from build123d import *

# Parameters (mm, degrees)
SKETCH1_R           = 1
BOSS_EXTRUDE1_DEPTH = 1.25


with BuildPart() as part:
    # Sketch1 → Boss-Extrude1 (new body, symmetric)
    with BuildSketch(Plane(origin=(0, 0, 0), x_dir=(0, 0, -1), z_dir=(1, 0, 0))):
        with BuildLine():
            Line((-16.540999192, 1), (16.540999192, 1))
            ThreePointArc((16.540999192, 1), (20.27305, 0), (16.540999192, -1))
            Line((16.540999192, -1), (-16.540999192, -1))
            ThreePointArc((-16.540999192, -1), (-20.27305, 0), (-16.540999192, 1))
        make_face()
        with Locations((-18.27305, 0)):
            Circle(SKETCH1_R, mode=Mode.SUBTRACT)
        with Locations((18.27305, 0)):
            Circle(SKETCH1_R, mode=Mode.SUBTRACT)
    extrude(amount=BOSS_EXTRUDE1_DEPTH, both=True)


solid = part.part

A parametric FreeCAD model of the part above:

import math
import FreeCAD as App
import Part
import Sketcher
from FreeCAD import Vector

doc = App.newDocument("Part")
body = doc.addObject("PartDesign::Body", "Body")

sketch1 = doc.addObject("Sketcher::SketchObject", "Sketch")
body.addObject(sketch1)
sketch1.AttachmentSupport = (doc.YZ_Plane, [""])
sketch1.MapMode = "FlatFace"
sketch1.addGeometry([
    Part.LineSegment(Vector(1, -16.540999, 0), Vector(1, 16.540999, 0)),
    Part.ArcOfCircle(Part.Circle(Vector(0, 18.27305, 0), Vector(0, 0, 1), 2), math.radians(-60), math.radians(240)),
    Part.LineSegment(Vector(-1, 16.540999, 0), Vector(-1, -16.540999, 0)),
    Part.ArcOfCircle(Part.Circle(Vector(0, -18.27305, 0), Vector(0, 0, 1), 2), math.radians(120), math.radians(420)),
    Part.Circle(Vector(0, -18.27305, 0), Vector(0, 0, 1), 1),
    Part.Circle(Vector(0, 18.27305, 0), Vector(0, 0, 1), 1),
], False)
sketch1.addConstraint([
    Sketcher.Constraint("Coincident", 0, 2, 1, 1),
    Sketcher.Constraint("Coincident", 1, 2, 2, 1),
    Sketcher.Constraint("Coincident", 2, 2, 3, 1),
    Sketcher.Constraint("Coincident", 3, 2, 0, 1),
    Sketcher.Constraint("Vertical", 0),
    Sketcher.Constraint("Vertical", 2),
    Sketcher.Constraint("Coincident", 4, 3, 3, 3),
    Sketcher.Constraint("Coincident", 5, 3, 1, 3),
    Sketcher.Constraint("Equal", 1, 3),
    Sketcher.Constraint("Equal", 4, 5),
    Sketcher.Constraint("Symmetric", 1, 3, 3, 3, -1, 1),
    Sketcher.Constraint("Symmetric", 0, 2, 1, 2, -2),
    Sketcher.Constraint("Diameter", 4, 2.0),
    Sketcher.Constraint("Radius", 1, 2.0),
    Sketcher.Constraint("DistanceX", -1, 1, 0, 2, 1.0),
    Sketcher.Constraint("DistanceY", 0, 1, 0, 2, 33.081998),
])
pad1 = doc.addObject("PartDesign::Pad", "Pad")
body.addObject(pad1)
pad1.Profile = sketch1
pad1.Length = 2.5
pad1.Midplane = True

doc.recompute()
